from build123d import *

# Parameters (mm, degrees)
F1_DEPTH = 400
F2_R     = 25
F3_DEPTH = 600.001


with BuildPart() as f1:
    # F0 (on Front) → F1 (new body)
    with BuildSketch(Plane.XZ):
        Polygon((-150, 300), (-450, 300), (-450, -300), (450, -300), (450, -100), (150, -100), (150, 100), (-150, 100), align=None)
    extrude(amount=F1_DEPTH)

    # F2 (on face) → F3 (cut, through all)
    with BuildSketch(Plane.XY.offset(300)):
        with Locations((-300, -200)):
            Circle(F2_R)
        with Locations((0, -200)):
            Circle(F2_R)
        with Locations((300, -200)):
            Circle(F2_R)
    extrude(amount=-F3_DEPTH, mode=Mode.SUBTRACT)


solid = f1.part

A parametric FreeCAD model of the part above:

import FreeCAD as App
import Part
import Sketcher
from FreeCAD import Vector


def add_polygon(sketch, points):
    """Adds a closed chain of lines whose ends are joined by coincident constraints."""
    first, n = sketch.GeometryCount, len(points)
    for a, b in zip(points, points[1:] + points[:1]):
        sketch.addGeometry(Part.LineSegment(App.Vector(*a, 0), App.Vector(*b, 0)), False)
    for i in range(n):
        sketch.addConstraint(Sketcher.Constraint("Coincident", first + i, 2, first + (i + 1) % n, 1))

doc = App.newDocument("Part")
body = doc.addObject("PartDesign::Body", "Body")

# Sketch on XZ plane
sketch1 = doc.addObject("Sketcher::SketchObject", "Sketch")
body.addObject(sketch1)
sketch1.AttachmentSupport = (doc.XZ_Plane, [""])
sketch1.MapMode = "FlatFace"
add_polygon(sketch1, [(-150, 300), (-450, 300), (-450, -300), (450, -300), (450, -100), (150, -100), (150, 100), (-150, 100)])  # lines 0-7
sketch1.addConstraint(Sketcher.Constraint("Horizontal", 0))
sketch1.addConstraint(Sketcher.Constraint("Vertical", 1))
sketch1.addConstraint(Sketcher.Constraint("Horizontal", 2))
sketch1.addConstraint(Sketcher.Constraint("Vertical", 3))
sketch1.addConstraint(Sketcher.Constraint("Horizontal", 4))
sketch1.addConstraint(Sketcher.Constraint("Vertical", 5))
sketch1.addConstraint(Sketcher.Constraint("Horizontal", 6))
sketch1.addConstraint(Sketcher.Constraint("Vertical", 7))
sketch1.addConstraint(Sketcher.Constraint("Symmetric", 0, 2, 2, 2, -1, 1))
sketch1.addConstraint(Sketcher.Constraint("Symmetric", 4, 2, 6, 2, -1, 1))
sketch1.addConstraint(Sketcher.Constraint("Equal", 4, 6))
sketch1.addConstraint(Sketcher.Constraint("Equal", 3, 5))
sketch1.addConstraint(Sketcher.Constraint("DistanceX", 0, 2, 0, 1, 300.0))
sketch1.addConstraint(Sketcher.Constraint("DistanceY", 1, 2, 1, 1, 600.0))
pad1 = doc.addObject("PartDesign::Pad", "Pad")
body.addObject(pad1)
pad1.Profile = sketch1
pad1.Length = 400

# Sketch on XY plane
sketch2 = doc.addObject("Sketcher::SketchObject", "Sketch001")
body.addObject(sketch2)
sketch2.AttachmentSupport = (doc.XY_Plane, [""])
sketch2.MapMode = "FlatFace"
sketch2.AttachmentOffset = App.Placement(Vector(0, 0, 300), App.Rotation())
sketch2.addGeometry(Part.Circle(Vector(-300, -200, 0), Vector(0, 0, 1), 25), False)
sketch2.addGeometry(Part.Circle(Vector(0, -200, 0), Vector(0, 0, 1), 25), False)
sketch2.addGeometry(Part.Circle(Vector(300, -200, 0), Vector(0, 0, 1), 25), False)
sketch2.addConstraint(Sketcher.Constraint("Equal", 0, 1))
sketch2.addConstraint(Sketcher.Constraint("Equal", 1, 2))
sketch2.addConstraint(Sketcher.Constraint("Symmetric", 0, 3, 2, 3, -2))
sketch2.addConstraint(Sketcher.Constraint("PointOnObject", 1, 3, -2))
sketch2.addConstraint(Sketcher.Constraint("Horizontal", 0, 3, 1, 3))
sketch2.addConstraint(Sketcher.Constraint("Diameter", 0, 50.0))
sketch2.addConstraint(Sketcher.Constraint("DistanceX", 0, 3, -1, 1, 300.0))
sketch2.addConstraint(Sketcher.Constraint("DistanceY", 0, 3, -1, 1, 200.0))
pocket1 = doc.addObject("PartDesign::Pocket", "Pocket")
body.addObject(pocket1)
pocket1.Profile = sketch2
pocket1.Type = "ThroughAll"

doc.recompute()
